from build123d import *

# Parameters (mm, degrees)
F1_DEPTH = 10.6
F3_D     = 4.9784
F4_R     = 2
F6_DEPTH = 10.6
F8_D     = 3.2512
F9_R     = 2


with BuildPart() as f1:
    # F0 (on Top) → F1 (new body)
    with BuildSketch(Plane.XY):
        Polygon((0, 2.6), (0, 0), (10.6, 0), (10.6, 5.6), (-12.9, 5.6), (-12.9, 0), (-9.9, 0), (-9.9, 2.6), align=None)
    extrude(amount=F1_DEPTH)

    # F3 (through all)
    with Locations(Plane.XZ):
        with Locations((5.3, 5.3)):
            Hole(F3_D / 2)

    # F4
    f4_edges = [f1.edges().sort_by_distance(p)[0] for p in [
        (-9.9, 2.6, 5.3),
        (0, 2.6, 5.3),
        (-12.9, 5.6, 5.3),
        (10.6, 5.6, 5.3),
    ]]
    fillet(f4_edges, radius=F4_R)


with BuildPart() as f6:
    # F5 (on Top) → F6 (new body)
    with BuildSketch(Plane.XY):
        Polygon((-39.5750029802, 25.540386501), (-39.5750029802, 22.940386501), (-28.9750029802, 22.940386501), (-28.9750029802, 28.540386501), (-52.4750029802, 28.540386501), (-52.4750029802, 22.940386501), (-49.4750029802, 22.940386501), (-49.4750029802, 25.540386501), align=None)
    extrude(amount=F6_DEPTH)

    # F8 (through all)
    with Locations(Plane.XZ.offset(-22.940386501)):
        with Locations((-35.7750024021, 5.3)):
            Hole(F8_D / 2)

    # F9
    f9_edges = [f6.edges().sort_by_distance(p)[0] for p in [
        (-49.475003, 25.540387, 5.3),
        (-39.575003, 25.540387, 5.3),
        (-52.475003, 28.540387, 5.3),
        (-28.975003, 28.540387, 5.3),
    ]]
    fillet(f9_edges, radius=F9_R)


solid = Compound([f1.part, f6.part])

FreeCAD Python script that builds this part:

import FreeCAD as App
import Part
import Sketcher
from FreeCAD import Vector
Q = App.Units.Quantity


def edges_at(feature, points):
    """Names of the edges that pass closest to the given points."""
    edges = feature.Shape.Edges
    near = lambda p: min(range(len(edges)), key=lambda i: edges[i].distToShape(Part.Vertex(*p))[0])
    return sorted({f"Edge{near(p) + 1}" for p in points})


def add_polygon(sketch, points):
    """Adds a closed chain of lines whose ends are joined by coincident constraints."""
    first, n = sketch.GeometryCount, len(points)
    for a, b in zip(points, points[1:] + points[:1]):
        sketch.addGeometry(Part.LineSegment(App.Vector(*a, 0), App.Vector(*b, 0)), False)
    for i in range(n):
        sketch.addConstraint(Sketcher.Constraint("Coincident", first + i, 2, first + (i + 1) % n, 1))

doc = App.newDocument("Part")
params = doc.addObject("Spreadsheet::Sheet", "Params")
for row, (alias, value) in enumerate([
    ("sketch1_width", "3 mm"),
    ("sketch1_width2", "10.6 mm"),
    ("sketch1_width3", "23.5 mm"),
    ("sketch1_height", "2.6 mm"),
    ("sketch1_height2", "5.6 mm"),
    ("pad1_length", "10.6 mm"),
    ("hole_diameter", "4.9784 mm"),
    ("fillet_radius", "2 mm"),
    ("sketch3_width", "3 mm"),
    ("sketch3_width2", "10.6 mm"),
    ("sketch3_width3", "23.5 mm"),
    ("sketch3_height", "2.6 mm"),
    ("sketch3_height2", "5.6 mm"),
    ("pad2_length", "10.6 mm"),
    ("hole2_diameter", "3.2512 mm"),
    ("fillet2_radius", "2 mm"),
], start=1):
    params.set(f"A{row}", alias)
    params.set(f"B{row}", "=" + value)
    params.setAlias(f"B{row}", alias)

body = doc.addObject("PartDesign::Body", "Body")

# Sketch on XY plane
sketch1 = body.newObject("Sketcher::SketchObject", "Sketch")
sketch1.AttachmentSupport = (doc.getObject("XY_Plane"), [""])
sketch1.MapMode = "FlatFace"
add_polygon(sketch1, [(0, 2.6), (0, 0), (10.6, 0), (10.6, 5.6), (-12.9, 5.6), (-12.9, 0), (-9.9, 0), (-9.9, 2.6)])  # lines 0-7
sketch1.addConstraint([
    Sketcher.Constraint("Vertical", 0),
    Sketcher.Constraint("Horizontal", 1),
    Sketcher.Constraint("Vertical", 2),
    Sketcher.Constraint("Horizontal", 3),
    Sketcher.Constraint("Vertical", 4),
    Sketcher.Constraint("Horizontal", 5),
    Sketcher.Constraint("Vertical", 6),
    Sketcher.Constraint("Horizontal", 7),
    Sketcher.Constraint("Coincident", 0, 2, -1, 1),
    Sketcher.Constraint("PointOnObject", 4, 2, -1),
    Sketcher.Constraint("DistanceX", 5, 1, 5, 2, Q("3 mm")),
    Sketcher.Constraint("DistanceX", 1, 1, 1, 2, Q("10.6 mm")),
    Sketcher.Constraint("DistanceX", 3, 2, 3, 1, Q("23.5 mm")),
    Sketcher.Constraint("DistanceY", 0, 2, 0, 1, Q("2.6 mm")),
    Sketcher.Constraint("DistanceY", 2, 1, 2, 2, Q("5.6 mm")),
])
sketch1.setExpression("Constraints[18]", "Params.sketch1_width")
sketch1.setExpression("Constraints[19]", "Params.sketch1_width2")
sketch1.setExpression("Constraints[20]", "Params.sketch1_width3")
sketch1.setExpression("Constraints[21]", "Params.sketch1_height")
sketch1.setExpression("Constraints[22]", "Params.sketch1_height2")
pad1 = body.newObject("PartDesign::Pad", "Pad")
pad1.Profile = sketch1
pad1.setExpression("Length", "Params.pad1_length")

# Sketch on XZ plane
sketch2 = body.newObject("Sketcher::SketchObject", "Sketch001")
sketch2.AttachmentSupport = (doc.getObject("XZ_Plane"), [""])
sketch2.MapMode = "FlatFace"
sketch2.addGeometry(Part.Circle(Vector(5.3, 5.3, 0), Vector(0, 0, 1), 2.5), False)
sketch2.addConstraint([
    Sketcher.Constraint("Diameter", 0, Q("4.9784 mm")),
    Sketcher.Constraint("DistanceX", -1, 1, 0, 3, Q("5.3 mm")),
    Sketcher.Constraint("DistanceY", -1, 1, 0, 3, Q("5.3 mm")),
])
doc.recompute()
hole = body.newObject("PartDesign::Hole", "Hole")
hole.Profile = sketch2
hole.ThreadType = "None"
hole.setExpression("Diameter", "Params.hole_diameter")
hole.DepthType = "ThroughAll"
doc.recompute()

fillet = body.newObject("PartDesign::Fillet", "Fillet")
fillet.Base = (hole, edges_at(hole, [
    (-9.9, 2.6, 5.3),
    (0, 2.6, 5.3),
    (-12.9, 5.6, 5.3),
    (10.6, 5.6, 5.3),
]))
fillet.setExpression("Radius", "Params.fillet_radius")
body2 = doc.addObject("PartDesign::Body", "Body001")

# Sketch on XY plane
sketch3 = body2.newObject("Sketcher::SketchObject", "Sketch002")
sketch3.AttachmentSupport = (doc.getObject("XY_Plane001"), [""])
sketch3.MapMode = "FlatFace"
add_polygon(sketch3, [(-39.6, 25.5), (-39.6, 22.9), (-29, 22.9), (-29, 28.5), (-52.5, 28.5), (-52.5, 22.9), (-49.5, 22.9), (-49.5, 25.5)])  # lines 0-7
sketch3.addConstraint([
    Sketcher.Constraint("Vertical", 0),
    Sketcher.Constraint("Horizontal", 1),
    Sketcher.Constraint("Vertical", 2),
    Sketcher.Constraint("Horizontal", 3),
    Sketcher.Constraint("Vertical", 4),
    Sketcher.Constraint("Horizontal", 5),
    Sketcher.Constraint("Vertical", 6),
    Sketcher.Constraint("Horizontal", 7),
    Sketcher.Constraint("Horizontal", 1, 2, 4, 2),
    Sketcher.Constraint("DistanceX", 5, 1, 5, 2, Q("3 mm")),
    Sketcher.Constraint("DistanceX", 1, 1, 1, 2, Q("10.6 mm")),
    Sketcher.Constraint("DistanceX", 3, 2, 3, 1, Q("23.5 mm")),
    Sketcher.Constraint("DistanceY", 0, 2, 0, 1, Q("2.6 mm")),
    Sketcher.Constraint("DistanceY", 2, 1, 2, 2, Q("5.6 mm")),
    Sketcher.Constraint("DistanceX", 0, 2, -1, 1, Q("39.575003 mm")),
    Sketcher.Constraint("DistanceY", -1, 1, 0, 2, Q("22.940387 mm")),
])
sketch3.setExpression("Constraints[17]", "Params.sketch3_width")
sketch3.setExpression("Constraints[18]", "Params.sketch3_width2")
sketch3.setExpression("Constraints[19]", "Params.sketch3_width3")
sketch3.setExpression("Constraints[20]", "Params.sketch3_height")
sketch3.setExpression("Constraints[21]", "Params.sketch3_height2")
pad2 = body2.newObject("PartDesign::Pad", "Pad001")
pad2.Profile = sketch3
pad2.setExpression("Length", "Params.pad2_length")

# Sketch on XZ plane
sketch4 = body2.newObject("Sketcher::SketchObject", "Sketch003")
sketch4.AttachmentSupport = (doc.getObject("XZ_Plane001"), [""])
sketch4.MapMode = "FlatFace"
sketch4.AttachmentOffset = App.Placement(Vector(0, 0, -22.940387), App.Rotation())
sketch4.addGeometry(Part.Circle(Vector(-35.8, 5.3, 0), Vector(0, 0, 1), 1.6), False)
sketch4.addConstraint([
    Sketcher.Constraint("Diameter", 0, Q("3.2512 mm")),
    Sketcher.Constraint("DistanceY", -1, 1, 0, 3, Q("5.3 mm")),
    Sketcher.Constraint("DistanceX", 0, 3, -1, 1, Q("35.775002 mm")),
])
doc.recompute()
hole2 = body2.newObject("PartDesign::Hole", "Hole001")
hole2.Profile = sketch4
hole2.ThreadType = "None"
hole2.setExpression("Diameter", "Params.hole2_diameter")
hole2.DepthType = "ThroughAll"
doc.recompute()

fillet2 = body2.newObject("PartDesign::Fillet", "Fillet001")
fillet2.Base = (hole2, edges_at(hole2, [
    (-49.475, 25.54, 5.3),
    (-39.575, 25.54, 5.3),
    (-52.475, 28.54, 5.3),
    (-28.975, 28.54, 5.3),
]))
fillet2.setExpression("Radius", "Params.fillet2_radius")

doc.recompute()
